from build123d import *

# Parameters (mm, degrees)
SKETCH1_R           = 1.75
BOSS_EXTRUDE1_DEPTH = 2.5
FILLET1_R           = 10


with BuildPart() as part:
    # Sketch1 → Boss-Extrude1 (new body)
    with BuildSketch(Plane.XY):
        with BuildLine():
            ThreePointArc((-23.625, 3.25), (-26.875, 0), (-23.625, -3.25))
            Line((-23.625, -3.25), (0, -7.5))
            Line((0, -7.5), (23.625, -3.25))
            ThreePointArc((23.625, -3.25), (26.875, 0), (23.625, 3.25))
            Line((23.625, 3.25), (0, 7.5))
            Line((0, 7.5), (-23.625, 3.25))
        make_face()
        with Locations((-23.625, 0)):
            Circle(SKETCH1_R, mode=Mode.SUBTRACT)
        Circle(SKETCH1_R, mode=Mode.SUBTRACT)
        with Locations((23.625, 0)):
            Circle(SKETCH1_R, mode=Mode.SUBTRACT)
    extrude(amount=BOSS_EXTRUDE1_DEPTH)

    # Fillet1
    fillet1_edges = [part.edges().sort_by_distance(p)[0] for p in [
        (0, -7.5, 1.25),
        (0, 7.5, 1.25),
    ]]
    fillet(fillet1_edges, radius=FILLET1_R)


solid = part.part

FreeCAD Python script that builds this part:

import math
import FreeCAD as App
import Part
import Sketcher
from FreeCAD import Vector
Q = App.Units.Quantity


def edges_at(feature, points):
    """Names of the edges that pass closest to the given points."""
    edges = feature.Shape.Edges
    near = lambda p: min(range(len(edges)), key=lambda i: edges[i].distToShape(Part.Vertex(*p))[0])
    return sorted({f"Edge{near(p) + 1}" for p in points})

doc = App.newDocument("Part")
params = doc.addObject("Spreadsheet::Sheet", "Params")
for row, (alias, value) in enumerate([
    ("sketch1_diameter", "3.5 mm"),
    ("sketch1_radius", "3.25 mm"),
    ("pad1_length", "2.5 mm"),
    ("fillet_radius", "10 mm"),
], start=1):
    params.set(f"A{row}", alias)
    params.set(f"B{row}", "=" + value)
    params.setAlias(f"B{row}", alias)

body = doc.addObject("PartDesign::Body", "Body")

# Sketch on XY plane
sketch1 = body.newObject("Sketcher::SketchObject", "Sketch")
sketch1.AttachmentSupport = (doc.getObject("XY_Plane"), [""])
sketch1.MapMode = "FlatFace"
sketch1.addGeometry([
    Part.ArcOfCircle(Part.Circle(Vector(-23.6, 0, 0), Vector(0, 0, 1), 3.2), math.radians(90), math.radians(270)),  # 0
    Part.LineSegment(Vector(-23.6, -3.2, 0), Vector(0, -7.5, 0)),  # 1
    Part.LineSegment(Vector(0, -7.5, 0), Vector(23.6, -3.2, 0)),  # 2
    Part.ArcOfCircle(Part.Circle(Vector(23.6, 0, 0), Vector(0, 0, 1), 3.2), math.radians(-90), math.radians(90)),  # 3
    Part.LineSegment(Vector(23.6, 3.2, 0), Vector(0, 7.5, 0)),  # 4
    Part.LineSegment(Vector(0, 7.5, 0), Vector(-23.6, 3.2, 0)),  # 5
    Part.Circle(Vector(-23.6, 0, 0), Vector(0, 0, 1), 1.8),  # 6
    Part.Circle(Vector(0, 0, 0), Vector(0, 0, 1), 1.8),  # 7
    Part.Circle(Vector(23.6, 0, 0), Vector(0, 0, 1), 1.8),  # 8
], False)
sketch1.addConstraint([
    Sketcher.Constraint("Coincident", 0, 2, 1, 1),
    Sketcher.Constraint("Coincident", 1, 2, 2, 1),
    Sketcher.Constraint("Coincident", 2, 2, 3, 1),
    Sketcher.Constraint("Coincident", 3, 2, 4, 1),
    Sketcher.Constraint("Coincident", 4, 2, 5, 1),
    Sketcher.Constraint("Coincident", 5, 2, 0, 1),
    Sketcher.Constraint("Coincident", 7, 3, -1, 1),
    Sketcher.Constraint("Coincident", 6, 3, 0, 3),
    Sketcher.Constraint("Coincident", 8, 3, 3, 3),
    Sketcher.Constraint("Equal", 0, 3),
    Sketcher.Constraint("Equal", 6, 7),
    Sketcher.Constraint("Equal", 7, 8),
    Sketcher.Constraint("Symmetric", 0, 3, 3, 3, -1, 1),
    Sketcher.Constraint("Symmetric", 1, 2, 4, 2, -1, 1),
    Sketcher.Constraint("Symmetric", 0, 2, 2, 2, -2),
    Sketcher.Constraint("PointOnObject", 1, 2, -2),
    Sketcher.Constraint("Parallel", 1, 4),
    Sketcher.Constraint("Parallel", 2, 5),
    Sketcher.Constraint("Vertical", 6, 3, 0, 2),
    Sketcher.Constraint("Diameter", 6, Q("3.5 mm")),
    Sketcher.Constraint("Radius", 0, Q("3.25 mm")),
    Sketcher.Constraint("DistanceY", 1, 2, 4, 2, Q("15 mm")),
    Sketcher.Constraint("DistanceX", 0, 3, 3, 3, Q("47.25 mm")),
])
sketch1.setExpression("Constraints[19]", "Params.sketch1_diameter")
sketch1.setExpression("Constraints[20]", "Params.sketch1_radius")
pad1 = body.newObject("PartDesign::Pad", "Pad")
pad1.Profile = sketch1
pad1.setExpression("Length", "Params.pad1_length")
doc.recompute()

fillet = body.newObject("PartDesign::Fillet", "Fillet")
fillet.Base = (pad1, edges_at(pad1, [(0, -7.5, 1.25), (0, 7.5, 1.25)]))
fillet.setExpression("Radius", "Params.fillet_radius")

doc.recompute()
